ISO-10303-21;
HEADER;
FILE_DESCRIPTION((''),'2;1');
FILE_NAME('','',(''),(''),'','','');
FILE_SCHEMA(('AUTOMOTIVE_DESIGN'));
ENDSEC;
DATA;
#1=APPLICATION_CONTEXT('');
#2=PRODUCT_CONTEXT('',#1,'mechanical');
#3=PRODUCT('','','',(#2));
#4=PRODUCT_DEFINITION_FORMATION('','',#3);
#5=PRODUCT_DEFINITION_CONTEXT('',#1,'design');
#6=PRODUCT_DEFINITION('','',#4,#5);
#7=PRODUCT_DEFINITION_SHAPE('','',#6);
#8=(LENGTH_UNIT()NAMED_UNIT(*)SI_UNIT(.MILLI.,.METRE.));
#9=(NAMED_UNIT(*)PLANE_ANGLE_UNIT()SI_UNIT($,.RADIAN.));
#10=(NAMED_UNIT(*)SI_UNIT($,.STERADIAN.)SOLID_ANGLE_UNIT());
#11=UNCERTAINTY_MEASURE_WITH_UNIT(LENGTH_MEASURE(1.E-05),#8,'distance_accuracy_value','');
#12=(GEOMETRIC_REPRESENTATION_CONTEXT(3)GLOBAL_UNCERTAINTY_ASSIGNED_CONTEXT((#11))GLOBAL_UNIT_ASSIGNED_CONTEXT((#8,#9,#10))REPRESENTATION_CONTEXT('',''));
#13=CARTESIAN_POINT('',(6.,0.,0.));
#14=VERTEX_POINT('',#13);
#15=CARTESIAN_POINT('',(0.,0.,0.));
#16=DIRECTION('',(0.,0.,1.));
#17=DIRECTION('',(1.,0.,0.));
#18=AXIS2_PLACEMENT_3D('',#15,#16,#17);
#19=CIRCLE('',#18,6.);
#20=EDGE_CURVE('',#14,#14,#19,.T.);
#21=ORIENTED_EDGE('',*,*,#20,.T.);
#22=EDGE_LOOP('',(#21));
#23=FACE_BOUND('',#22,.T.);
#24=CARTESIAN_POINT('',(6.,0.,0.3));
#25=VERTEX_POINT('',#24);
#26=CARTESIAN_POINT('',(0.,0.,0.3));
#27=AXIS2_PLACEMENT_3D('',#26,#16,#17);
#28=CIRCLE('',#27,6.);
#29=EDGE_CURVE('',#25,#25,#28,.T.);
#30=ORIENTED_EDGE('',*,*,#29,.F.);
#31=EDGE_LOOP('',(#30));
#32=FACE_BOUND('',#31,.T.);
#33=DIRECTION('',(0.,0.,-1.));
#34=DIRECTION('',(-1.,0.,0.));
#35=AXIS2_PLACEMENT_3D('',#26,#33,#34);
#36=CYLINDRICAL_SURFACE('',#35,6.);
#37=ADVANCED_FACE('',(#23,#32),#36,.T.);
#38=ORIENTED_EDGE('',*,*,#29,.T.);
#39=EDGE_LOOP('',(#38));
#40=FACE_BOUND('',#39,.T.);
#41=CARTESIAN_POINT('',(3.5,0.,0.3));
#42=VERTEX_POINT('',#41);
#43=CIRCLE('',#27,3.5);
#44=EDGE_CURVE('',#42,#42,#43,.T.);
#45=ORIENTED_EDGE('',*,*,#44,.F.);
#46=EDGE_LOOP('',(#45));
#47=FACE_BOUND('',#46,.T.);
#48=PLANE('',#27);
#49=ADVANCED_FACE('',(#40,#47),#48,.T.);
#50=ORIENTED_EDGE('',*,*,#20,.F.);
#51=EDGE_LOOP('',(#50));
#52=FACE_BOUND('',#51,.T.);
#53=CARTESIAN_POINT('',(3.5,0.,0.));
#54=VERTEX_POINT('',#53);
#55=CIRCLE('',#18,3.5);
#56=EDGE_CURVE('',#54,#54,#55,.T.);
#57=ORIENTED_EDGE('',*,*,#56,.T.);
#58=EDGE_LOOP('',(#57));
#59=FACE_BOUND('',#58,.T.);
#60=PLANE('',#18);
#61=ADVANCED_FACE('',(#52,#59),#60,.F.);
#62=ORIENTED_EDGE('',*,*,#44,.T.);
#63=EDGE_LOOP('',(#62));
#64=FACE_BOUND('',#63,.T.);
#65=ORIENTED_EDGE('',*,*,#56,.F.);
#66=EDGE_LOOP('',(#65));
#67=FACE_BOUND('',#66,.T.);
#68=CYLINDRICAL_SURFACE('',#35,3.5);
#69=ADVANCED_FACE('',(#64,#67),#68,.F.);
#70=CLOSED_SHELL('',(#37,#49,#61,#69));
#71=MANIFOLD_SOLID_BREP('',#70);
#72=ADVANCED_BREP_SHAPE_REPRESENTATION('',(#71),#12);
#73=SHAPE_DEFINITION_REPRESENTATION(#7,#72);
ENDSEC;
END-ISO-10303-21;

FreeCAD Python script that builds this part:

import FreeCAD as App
import Part
import Sketcher
from FreeCAD import Vector

doc = App.newDocument("Part")
params = doc.addObject("Spreadsheet::Sheet", "Params")
for row, (alias, value) in enumerate([
    ("sketch1_diameter", "12 mm"),
    ("sketch1_diameter2", "7 mm"),
    ("pad1_length", "0.3 mm"),
], start=1):
    params.set(f"A{row}", alias)
    params.set(f"B{row}", "=" + value)
    params.setAlias(f"B{row}", alias)

body = doc.addObject("PartDesign::Body", "Body")

sketch1 = body.newObject("Sketcher::SketchObject", "Sketch")
sketch1.AttachmentSupport = (doc.getObject("XY_Plane"), [""])
sketch1.MapMode = "FlatFace"
sketch1.addGeometry(Part.Circle(Vector(0, 0, 0), Vector(0, 0, 1), 6), False)
sketch1.addGeometry(Part.Circle(Vector(0, 0, 0), Vector(0, 0, 1), 3.5), False)
sketch1.addConstraint(Sketcher.Constraint("Coincident", 0, 3, -1, 1))
sketch1.addConstraint(Sketcher.Constraint("Coincident", 1, 3, -1, 1))
sketch1.addConstraint(Sketcher.Constraint("Diameter", 0, 12.0))
sketch1.addConstraint(Sketcher.Constraint("Diameter", 1, 7.0))
sketch1.setExpression("Constraints[2]", "Params.sketch1_diameter")
sketch1.setExpression("Constraints[3]", "Params.sketch1_diameter2")
pad1 = body.newObject("PartDesign::Pad", "Pad")
pad1.Profile = sketch1
pad1.setExpression("Length", "Params.pad1_length")

doc.recompute()
